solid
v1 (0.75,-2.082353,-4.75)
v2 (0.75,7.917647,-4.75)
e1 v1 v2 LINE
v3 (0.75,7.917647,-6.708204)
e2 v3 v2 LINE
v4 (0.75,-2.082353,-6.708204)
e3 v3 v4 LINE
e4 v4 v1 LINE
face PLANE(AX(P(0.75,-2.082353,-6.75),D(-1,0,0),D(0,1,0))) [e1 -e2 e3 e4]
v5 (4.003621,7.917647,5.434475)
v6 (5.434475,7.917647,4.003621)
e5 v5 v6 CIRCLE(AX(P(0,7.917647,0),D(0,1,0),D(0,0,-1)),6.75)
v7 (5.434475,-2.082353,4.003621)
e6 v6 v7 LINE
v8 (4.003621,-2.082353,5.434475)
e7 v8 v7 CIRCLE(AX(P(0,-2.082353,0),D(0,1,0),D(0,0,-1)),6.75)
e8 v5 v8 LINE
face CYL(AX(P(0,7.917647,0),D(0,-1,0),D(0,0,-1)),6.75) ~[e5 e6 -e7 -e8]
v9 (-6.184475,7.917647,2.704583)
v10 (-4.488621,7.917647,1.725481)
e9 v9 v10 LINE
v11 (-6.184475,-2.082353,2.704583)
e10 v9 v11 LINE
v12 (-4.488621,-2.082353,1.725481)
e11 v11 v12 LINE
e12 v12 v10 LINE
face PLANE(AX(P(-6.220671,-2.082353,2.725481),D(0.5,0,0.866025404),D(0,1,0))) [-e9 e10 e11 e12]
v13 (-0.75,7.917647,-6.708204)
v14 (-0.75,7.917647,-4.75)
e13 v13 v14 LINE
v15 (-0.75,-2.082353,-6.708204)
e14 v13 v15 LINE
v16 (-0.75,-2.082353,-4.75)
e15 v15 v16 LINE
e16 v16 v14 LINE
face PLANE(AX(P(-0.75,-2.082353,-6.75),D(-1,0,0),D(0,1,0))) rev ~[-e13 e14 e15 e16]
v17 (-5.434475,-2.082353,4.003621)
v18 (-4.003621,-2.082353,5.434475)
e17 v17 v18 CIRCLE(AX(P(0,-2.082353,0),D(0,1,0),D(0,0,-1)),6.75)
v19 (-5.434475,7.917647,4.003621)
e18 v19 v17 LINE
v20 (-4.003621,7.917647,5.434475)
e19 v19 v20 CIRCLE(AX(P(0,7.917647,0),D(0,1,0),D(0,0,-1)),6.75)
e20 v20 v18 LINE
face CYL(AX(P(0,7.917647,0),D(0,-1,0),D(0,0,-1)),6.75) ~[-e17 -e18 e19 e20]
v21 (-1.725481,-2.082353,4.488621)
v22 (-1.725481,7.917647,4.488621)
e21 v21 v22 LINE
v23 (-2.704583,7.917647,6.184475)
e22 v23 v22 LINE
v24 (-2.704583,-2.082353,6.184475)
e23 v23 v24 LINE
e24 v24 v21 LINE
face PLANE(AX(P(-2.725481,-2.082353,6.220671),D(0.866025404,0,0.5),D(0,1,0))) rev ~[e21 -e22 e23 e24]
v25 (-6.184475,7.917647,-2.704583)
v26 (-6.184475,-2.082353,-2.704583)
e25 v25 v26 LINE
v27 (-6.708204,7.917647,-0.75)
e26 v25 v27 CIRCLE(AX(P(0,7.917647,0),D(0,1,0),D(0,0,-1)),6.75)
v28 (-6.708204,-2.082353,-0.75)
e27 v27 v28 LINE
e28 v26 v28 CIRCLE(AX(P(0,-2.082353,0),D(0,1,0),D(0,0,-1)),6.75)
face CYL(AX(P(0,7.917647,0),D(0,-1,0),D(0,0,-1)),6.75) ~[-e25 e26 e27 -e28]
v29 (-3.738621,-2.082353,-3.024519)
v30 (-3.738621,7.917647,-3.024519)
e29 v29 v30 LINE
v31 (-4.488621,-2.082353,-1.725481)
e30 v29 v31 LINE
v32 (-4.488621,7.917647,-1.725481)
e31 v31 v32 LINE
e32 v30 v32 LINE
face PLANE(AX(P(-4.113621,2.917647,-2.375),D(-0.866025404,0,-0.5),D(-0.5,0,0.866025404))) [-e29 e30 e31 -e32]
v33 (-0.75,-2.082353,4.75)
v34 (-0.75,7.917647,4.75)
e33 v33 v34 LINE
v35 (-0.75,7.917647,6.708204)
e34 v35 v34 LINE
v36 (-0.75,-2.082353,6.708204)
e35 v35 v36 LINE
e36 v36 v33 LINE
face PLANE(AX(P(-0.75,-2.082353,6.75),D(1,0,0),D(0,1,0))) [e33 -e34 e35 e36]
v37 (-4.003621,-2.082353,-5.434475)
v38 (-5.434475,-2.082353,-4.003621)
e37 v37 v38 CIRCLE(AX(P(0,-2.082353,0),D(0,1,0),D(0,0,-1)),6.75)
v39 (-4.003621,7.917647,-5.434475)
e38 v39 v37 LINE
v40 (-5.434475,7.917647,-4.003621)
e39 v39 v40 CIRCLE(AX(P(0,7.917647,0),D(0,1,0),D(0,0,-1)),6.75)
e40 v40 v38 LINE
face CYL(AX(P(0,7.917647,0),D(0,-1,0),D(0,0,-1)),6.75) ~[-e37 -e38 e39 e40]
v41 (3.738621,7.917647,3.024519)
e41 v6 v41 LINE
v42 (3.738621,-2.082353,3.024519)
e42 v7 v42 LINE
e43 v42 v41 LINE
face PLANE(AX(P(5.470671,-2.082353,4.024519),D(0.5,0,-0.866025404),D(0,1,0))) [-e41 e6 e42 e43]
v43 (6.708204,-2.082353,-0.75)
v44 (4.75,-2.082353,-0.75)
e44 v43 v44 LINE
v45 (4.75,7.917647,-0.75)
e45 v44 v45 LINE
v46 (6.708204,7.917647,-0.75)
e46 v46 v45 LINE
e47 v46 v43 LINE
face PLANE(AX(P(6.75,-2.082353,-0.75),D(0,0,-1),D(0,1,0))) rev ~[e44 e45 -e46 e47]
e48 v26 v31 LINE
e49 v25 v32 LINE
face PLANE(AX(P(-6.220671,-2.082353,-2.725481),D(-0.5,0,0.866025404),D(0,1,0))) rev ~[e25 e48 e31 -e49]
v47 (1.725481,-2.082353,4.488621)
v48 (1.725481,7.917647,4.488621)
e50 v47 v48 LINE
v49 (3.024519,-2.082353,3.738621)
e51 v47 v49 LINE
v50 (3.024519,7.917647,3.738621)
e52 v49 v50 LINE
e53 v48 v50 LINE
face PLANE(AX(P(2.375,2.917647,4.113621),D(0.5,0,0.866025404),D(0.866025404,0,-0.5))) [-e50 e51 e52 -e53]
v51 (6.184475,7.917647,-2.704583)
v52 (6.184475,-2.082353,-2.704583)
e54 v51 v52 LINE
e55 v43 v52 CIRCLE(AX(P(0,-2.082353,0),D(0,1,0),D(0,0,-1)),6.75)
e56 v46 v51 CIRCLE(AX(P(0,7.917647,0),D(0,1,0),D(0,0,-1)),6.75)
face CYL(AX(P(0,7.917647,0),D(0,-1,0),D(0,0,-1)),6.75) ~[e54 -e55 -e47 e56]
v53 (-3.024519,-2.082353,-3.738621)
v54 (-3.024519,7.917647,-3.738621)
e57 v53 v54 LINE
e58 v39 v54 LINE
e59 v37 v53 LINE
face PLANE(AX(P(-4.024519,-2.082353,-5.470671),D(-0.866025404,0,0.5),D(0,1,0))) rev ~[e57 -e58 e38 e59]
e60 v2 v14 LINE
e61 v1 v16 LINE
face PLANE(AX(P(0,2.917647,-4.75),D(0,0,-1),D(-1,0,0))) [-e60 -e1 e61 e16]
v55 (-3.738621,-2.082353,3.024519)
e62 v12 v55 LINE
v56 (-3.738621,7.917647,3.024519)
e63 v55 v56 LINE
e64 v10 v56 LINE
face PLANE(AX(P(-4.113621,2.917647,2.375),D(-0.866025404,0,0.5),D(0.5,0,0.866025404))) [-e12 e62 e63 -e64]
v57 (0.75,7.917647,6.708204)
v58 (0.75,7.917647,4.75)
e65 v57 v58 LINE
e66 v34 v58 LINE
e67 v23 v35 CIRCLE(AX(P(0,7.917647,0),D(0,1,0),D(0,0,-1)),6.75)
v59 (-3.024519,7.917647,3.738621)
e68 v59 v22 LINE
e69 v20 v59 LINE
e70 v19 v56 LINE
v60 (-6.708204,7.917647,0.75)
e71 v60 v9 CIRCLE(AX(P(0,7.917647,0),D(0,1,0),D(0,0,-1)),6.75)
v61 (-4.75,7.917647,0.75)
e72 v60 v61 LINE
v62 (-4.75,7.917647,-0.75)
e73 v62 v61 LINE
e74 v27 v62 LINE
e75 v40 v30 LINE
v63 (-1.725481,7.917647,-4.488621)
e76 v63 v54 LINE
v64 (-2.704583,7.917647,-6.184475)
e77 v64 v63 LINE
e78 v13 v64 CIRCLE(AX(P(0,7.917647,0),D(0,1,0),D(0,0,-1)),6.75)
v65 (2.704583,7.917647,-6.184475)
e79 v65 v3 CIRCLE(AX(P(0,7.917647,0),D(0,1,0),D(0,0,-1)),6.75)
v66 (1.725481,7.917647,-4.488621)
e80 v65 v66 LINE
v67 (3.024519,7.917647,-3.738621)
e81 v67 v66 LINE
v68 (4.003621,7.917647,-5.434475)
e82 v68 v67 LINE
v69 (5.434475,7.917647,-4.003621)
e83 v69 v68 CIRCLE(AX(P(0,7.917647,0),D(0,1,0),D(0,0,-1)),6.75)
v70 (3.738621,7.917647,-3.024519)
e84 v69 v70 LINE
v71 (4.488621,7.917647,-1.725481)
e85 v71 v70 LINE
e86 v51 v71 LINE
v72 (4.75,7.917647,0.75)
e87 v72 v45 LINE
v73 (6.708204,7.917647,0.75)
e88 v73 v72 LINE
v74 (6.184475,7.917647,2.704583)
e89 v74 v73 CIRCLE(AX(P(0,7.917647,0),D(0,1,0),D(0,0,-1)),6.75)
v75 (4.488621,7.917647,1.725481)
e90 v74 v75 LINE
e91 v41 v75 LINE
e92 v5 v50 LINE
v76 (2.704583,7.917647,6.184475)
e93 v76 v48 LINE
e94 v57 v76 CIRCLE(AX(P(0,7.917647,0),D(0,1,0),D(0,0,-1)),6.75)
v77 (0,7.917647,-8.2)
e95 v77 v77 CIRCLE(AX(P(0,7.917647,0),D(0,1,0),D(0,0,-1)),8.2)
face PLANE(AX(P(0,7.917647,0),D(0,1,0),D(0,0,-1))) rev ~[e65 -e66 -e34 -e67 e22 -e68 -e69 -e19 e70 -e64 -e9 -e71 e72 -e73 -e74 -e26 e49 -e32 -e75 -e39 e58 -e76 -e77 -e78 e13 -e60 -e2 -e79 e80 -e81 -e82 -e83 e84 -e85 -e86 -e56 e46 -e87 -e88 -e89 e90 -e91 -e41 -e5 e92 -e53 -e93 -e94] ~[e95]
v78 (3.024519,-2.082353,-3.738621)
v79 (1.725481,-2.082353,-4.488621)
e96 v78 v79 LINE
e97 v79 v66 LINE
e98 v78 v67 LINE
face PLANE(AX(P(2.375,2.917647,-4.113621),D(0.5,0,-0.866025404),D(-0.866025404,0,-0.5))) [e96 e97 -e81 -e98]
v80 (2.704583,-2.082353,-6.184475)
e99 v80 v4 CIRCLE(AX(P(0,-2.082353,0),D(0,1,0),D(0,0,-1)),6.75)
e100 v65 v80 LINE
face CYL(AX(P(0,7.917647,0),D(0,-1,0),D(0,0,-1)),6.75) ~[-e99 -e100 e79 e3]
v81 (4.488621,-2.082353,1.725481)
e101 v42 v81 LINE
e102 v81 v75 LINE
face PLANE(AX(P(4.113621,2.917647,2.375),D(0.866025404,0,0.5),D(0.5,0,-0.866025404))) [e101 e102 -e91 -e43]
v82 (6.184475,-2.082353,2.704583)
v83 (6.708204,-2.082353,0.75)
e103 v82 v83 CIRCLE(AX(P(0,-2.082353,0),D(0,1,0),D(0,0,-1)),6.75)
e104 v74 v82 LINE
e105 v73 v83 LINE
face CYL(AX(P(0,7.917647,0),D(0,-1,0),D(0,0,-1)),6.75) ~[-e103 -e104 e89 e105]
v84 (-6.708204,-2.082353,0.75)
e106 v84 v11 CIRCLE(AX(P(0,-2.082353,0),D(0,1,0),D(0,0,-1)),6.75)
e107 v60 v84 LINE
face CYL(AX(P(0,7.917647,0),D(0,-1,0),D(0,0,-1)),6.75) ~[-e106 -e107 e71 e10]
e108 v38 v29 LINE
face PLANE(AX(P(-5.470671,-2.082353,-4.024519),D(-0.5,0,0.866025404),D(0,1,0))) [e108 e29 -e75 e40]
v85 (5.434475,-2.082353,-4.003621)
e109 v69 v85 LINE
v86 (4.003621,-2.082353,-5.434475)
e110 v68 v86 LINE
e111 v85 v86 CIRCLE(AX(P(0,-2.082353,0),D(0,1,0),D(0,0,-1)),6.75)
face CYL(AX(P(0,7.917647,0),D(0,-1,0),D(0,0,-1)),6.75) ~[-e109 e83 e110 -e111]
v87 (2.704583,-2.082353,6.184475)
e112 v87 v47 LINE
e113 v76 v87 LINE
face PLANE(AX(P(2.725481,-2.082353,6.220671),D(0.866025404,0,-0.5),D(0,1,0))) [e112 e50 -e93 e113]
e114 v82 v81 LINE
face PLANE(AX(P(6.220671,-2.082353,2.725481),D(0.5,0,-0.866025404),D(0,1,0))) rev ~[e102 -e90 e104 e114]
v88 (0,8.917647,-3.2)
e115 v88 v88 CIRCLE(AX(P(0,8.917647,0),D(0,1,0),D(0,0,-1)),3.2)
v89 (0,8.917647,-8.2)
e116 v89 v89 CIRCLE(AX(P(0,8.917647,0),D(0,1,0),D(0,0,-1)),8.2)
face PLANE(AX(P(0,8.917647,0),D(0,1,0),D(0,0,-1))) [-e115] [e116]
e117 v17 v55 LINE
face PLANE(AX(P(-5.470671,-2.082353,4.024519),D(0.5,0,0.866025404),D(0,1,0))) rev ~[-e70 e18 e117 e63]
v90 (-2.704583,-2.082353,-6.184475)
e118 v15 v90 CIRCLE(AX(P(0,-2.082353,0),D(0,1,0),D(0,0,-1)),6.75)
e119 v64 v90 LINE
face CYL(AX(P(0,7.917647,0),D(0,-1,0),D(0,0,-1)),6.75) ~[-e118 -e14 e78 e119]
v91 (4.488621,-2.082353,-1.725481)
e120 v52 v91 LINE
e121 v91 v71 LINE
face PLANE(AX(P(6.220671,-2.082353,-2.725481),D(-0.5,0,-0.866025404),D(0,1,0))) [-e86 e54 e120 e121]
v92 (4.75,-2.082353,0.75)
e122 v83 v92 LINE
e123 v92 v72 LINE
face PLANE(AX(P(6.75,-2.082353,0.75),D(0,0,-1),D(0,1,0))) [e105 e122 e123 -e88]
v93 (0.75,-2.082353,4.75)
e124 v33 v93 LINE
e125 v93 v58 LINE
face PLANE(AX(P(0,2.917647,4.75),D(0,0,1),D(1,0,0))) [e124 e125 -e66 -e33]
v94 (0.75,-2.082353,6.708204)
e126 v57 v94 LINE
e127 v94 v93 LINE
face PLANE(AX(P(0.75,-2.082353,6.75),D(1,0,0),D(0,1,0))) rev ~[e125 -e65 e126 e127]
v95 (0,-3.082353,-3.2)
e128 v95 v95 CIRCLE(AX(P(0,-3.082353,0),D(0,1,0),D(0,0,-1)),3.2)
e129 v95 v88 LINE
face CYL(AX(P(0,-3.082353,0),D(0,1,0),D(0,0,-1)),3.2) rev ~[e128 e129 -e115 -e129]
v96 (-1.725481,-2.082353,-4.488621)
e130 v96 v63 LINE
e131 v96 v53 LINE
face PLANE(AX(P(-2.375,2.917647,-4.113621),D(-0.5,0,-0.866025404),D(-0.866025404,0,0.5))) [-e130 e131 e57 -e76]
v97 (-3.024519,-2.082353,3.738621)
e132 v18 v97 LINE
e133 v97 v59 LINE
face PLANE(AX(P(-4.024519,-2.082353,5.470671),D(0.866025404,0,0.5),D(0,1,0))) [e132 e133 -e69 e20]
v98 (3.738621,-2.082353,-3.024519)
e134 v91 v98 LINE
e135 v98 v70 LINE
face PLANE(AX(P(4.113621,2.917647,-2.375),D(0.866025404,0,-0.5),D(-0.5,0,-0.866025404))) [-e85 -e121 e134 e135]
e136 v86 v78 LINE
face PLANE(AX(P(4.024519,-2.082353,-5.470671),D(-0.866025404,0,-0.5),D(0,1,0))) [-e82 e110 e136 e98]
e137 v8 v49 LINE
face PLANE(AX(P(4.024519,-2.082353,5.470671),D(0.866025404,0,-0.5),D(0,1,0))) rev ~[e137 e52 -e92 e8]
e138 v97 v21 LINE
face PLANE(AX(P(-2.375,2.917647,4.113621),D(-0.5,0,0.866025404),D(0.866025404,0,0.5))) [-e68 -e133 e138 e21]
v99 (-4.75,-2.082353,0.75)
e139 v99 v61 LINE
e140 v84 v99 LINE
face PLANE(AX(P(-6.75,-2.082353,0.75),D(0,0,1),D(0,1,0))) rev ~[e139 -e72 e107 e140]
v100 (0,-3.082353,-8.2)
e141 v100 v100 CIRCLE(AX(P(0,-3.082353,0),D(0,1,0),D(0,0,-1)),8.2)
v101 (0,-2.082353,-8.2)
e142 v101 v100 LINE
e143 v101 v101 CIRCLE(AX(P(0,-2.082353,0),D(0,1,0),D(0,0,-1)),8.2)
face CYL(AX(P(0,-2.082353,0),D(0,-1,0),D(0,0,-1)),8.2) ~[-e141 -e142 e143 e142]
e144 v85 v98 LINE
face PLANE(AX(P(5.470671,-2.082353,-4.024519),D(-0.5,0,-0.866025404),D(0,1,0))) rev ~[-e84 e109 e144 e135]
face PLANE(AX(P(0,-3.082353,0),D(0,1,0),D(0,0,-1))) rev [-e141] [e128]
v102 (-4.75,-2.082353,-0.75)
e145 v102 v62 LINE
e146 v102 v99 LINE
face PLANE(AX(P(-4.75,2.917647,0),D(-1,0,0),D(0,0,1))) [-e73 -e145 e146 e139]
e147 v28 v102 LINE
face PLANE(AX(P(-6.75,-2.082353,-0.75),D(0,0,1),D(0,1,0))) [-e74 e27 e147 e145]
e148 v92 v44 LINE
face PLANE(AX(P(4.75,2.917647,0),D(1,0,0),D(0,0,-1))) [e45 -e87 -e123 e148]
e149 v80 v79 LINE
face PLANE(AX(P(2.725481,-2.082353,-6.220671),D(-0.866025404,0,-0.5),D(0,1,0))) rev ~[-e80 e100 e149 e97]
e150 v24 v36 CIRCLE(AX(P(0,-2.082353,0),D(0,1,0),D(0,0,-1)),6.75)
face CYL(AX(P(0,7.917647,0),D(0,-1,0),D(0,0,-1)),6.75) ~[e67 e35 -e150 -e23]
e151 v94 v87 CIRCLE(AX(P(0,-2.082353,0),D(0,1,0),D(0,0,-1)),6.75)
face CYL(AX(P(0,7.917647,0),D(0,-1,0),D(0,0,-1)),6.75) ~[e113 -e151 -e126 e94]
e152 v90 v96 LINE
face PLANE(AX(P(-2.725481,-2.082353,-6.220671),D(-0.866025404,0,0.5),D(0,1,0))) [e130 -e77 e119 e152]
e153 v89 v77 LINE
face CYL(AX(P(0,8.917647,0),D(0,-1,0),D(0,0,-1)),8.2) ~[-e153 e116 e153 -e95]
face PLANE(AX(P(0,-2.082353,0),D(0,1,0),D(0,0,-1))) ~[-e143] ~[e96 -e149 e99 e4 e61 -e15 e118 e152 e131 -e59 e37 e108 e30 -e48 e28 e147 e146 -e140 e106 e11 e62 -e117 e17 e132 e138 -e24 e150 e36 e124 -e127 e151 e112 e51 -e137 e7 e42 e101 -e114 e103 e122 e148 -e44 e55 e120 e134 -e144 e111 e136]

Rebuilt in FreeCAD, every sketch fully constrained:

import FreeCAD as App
import Part
import Sketcher

V = App.Vector


def add_polygon(sketch, points):
    """Adds a closed chain of lines whose ends are joined by coincident constraints."""
    first, n = sketch.GeometryCount, len(points)
    for a, b in zip(points, points[1:] + points[:1]):
        sketch.addGeometry(Part.LineSegment(App.Vector(*a, 0), App.Vector(*b, 0)), False)
    for i in range(n):
        sketch.addConstraint(Sketcher.Constraint("Coincident", first + i, 2, first + (i + 1) % n, 1))

doc = App.newDocument("Part")
body = doc.addObject("PartDesign::Body", "Body")

# Sketch on XY plane
sketch1 = body.newObject("Sketcher::SketchObject", "Sketch")
sketch1.AttachmentSupport = (doc.getObject("XY_Plane"), [""])
sketch1.MapMode = "FlatFace"
add_polygon(sketch1, [(8.2, 8.9), (3.2, 8.9), (3.2, -3.1), (8.2, -3.1), (8.2, -2.1), (6.8, -2.1), (6.8, 7.9), (8.2, 7.9)])  # lines 0-7
sketch1.addConstraint([
    Sketcher.Constraint("Horizontal", 0),
    Sketcher.Constraint("Vertical", 1),
    Sketcher.Constraint("Horizontal", 2),
    Sketcher.Constraint("Vertical", 3),
    Sketcher.Constraint("Horizontal", 4),
    Sketcher.Constraint("Vertical", 5),
    Sketcher.Constraint("Horizontal", 6),
    Sketcher.Constraint("Vertical", 7),
    Sketcher.Constraint("Vertical", 3, 2, 6, 2),
    Sketcher.Constraint("Equal", 3, 7),
    Sketcher.Constraint("DistanceX", 0, 2, 0, 1, 5.0),
    Sketcher.Constraint("DistanceY", 1, 2, 1, 1, 12.0),
    Sketcher.Constraint("DistanceY", 3, 1, 3, 2, 1.0),
    Sketcher.Constraint("DistanceX", 4, 2, 4, 1, 1.45),
    Sketcher.Constraint("DistanceX", -1, 1, 0, 2, 3.2),
    Sketcher.Constraint("DistanceY", -1, 1, 0, 2, 8.917647),
])
revolution = body.newObject("PartDesign::Revolution", "Revolution")
revolution.Profile = sketch1
revolution.ReferenceAxis = (sketch1, ["V_Axis"])
revolution.Angle = 360

# Sketch on XY plane
sketch2 = body.newObject("Sketcher::SketchObject", "Sketch001")
sketch2.AttachmentSupport = (doc.getObject("XY_Plane"), [""])
sketch2.MapMode = "FlatFace"
sketch2.AttachmentOffset = App.Placement(V(0, 0, -6.75), App.Rotation())
add_polygon(sketch2, [(0.8, 7.9), (0.8, -2.1), (-0.8, -2.1), (-0.8, 7.9)])  # lines 0-3
sketch2.addConstraint([
    Sketcher.Constraint("Vertical", 0),
    Sketcher.Constraint("Horizontal", 1),
    Sketcher.Constraint("Vertical", 2),
    Sketcher.Constraint("Horizontal", 3),
    Sketcher.Constraint("DistanceY", 0, 2, 0, 1, 10.0),
    Sketcher.Constraint("DistanceX", 1, 2, 1, 1, 1.5),
    Sketcher.Constraint("DistanceX", -1, 1, 0, 2, 0.75),
    Sketcher.Constraint("DistanceY", 0, 2, -1, 1, 2.082353),
])
pocket1 = body.newObject("PartDesign::Pocket", "Pocket")
pocket1.Profile = sketch2
pocket1.Length = 2
pocket1.Reversed = True
doc.recompute()

polarpattern = body.newObject("PartDesign::PolarPattern", "PolarPattern")
polarpattern.Originals = [pocket1]
polarpattern.Axis = (doc.getObject("Y_Axis"), [""])
polarpattern.Angle = 360
polarpattern.Occurrences = 12
body.Tip = polarpattern

doc.recompute()
